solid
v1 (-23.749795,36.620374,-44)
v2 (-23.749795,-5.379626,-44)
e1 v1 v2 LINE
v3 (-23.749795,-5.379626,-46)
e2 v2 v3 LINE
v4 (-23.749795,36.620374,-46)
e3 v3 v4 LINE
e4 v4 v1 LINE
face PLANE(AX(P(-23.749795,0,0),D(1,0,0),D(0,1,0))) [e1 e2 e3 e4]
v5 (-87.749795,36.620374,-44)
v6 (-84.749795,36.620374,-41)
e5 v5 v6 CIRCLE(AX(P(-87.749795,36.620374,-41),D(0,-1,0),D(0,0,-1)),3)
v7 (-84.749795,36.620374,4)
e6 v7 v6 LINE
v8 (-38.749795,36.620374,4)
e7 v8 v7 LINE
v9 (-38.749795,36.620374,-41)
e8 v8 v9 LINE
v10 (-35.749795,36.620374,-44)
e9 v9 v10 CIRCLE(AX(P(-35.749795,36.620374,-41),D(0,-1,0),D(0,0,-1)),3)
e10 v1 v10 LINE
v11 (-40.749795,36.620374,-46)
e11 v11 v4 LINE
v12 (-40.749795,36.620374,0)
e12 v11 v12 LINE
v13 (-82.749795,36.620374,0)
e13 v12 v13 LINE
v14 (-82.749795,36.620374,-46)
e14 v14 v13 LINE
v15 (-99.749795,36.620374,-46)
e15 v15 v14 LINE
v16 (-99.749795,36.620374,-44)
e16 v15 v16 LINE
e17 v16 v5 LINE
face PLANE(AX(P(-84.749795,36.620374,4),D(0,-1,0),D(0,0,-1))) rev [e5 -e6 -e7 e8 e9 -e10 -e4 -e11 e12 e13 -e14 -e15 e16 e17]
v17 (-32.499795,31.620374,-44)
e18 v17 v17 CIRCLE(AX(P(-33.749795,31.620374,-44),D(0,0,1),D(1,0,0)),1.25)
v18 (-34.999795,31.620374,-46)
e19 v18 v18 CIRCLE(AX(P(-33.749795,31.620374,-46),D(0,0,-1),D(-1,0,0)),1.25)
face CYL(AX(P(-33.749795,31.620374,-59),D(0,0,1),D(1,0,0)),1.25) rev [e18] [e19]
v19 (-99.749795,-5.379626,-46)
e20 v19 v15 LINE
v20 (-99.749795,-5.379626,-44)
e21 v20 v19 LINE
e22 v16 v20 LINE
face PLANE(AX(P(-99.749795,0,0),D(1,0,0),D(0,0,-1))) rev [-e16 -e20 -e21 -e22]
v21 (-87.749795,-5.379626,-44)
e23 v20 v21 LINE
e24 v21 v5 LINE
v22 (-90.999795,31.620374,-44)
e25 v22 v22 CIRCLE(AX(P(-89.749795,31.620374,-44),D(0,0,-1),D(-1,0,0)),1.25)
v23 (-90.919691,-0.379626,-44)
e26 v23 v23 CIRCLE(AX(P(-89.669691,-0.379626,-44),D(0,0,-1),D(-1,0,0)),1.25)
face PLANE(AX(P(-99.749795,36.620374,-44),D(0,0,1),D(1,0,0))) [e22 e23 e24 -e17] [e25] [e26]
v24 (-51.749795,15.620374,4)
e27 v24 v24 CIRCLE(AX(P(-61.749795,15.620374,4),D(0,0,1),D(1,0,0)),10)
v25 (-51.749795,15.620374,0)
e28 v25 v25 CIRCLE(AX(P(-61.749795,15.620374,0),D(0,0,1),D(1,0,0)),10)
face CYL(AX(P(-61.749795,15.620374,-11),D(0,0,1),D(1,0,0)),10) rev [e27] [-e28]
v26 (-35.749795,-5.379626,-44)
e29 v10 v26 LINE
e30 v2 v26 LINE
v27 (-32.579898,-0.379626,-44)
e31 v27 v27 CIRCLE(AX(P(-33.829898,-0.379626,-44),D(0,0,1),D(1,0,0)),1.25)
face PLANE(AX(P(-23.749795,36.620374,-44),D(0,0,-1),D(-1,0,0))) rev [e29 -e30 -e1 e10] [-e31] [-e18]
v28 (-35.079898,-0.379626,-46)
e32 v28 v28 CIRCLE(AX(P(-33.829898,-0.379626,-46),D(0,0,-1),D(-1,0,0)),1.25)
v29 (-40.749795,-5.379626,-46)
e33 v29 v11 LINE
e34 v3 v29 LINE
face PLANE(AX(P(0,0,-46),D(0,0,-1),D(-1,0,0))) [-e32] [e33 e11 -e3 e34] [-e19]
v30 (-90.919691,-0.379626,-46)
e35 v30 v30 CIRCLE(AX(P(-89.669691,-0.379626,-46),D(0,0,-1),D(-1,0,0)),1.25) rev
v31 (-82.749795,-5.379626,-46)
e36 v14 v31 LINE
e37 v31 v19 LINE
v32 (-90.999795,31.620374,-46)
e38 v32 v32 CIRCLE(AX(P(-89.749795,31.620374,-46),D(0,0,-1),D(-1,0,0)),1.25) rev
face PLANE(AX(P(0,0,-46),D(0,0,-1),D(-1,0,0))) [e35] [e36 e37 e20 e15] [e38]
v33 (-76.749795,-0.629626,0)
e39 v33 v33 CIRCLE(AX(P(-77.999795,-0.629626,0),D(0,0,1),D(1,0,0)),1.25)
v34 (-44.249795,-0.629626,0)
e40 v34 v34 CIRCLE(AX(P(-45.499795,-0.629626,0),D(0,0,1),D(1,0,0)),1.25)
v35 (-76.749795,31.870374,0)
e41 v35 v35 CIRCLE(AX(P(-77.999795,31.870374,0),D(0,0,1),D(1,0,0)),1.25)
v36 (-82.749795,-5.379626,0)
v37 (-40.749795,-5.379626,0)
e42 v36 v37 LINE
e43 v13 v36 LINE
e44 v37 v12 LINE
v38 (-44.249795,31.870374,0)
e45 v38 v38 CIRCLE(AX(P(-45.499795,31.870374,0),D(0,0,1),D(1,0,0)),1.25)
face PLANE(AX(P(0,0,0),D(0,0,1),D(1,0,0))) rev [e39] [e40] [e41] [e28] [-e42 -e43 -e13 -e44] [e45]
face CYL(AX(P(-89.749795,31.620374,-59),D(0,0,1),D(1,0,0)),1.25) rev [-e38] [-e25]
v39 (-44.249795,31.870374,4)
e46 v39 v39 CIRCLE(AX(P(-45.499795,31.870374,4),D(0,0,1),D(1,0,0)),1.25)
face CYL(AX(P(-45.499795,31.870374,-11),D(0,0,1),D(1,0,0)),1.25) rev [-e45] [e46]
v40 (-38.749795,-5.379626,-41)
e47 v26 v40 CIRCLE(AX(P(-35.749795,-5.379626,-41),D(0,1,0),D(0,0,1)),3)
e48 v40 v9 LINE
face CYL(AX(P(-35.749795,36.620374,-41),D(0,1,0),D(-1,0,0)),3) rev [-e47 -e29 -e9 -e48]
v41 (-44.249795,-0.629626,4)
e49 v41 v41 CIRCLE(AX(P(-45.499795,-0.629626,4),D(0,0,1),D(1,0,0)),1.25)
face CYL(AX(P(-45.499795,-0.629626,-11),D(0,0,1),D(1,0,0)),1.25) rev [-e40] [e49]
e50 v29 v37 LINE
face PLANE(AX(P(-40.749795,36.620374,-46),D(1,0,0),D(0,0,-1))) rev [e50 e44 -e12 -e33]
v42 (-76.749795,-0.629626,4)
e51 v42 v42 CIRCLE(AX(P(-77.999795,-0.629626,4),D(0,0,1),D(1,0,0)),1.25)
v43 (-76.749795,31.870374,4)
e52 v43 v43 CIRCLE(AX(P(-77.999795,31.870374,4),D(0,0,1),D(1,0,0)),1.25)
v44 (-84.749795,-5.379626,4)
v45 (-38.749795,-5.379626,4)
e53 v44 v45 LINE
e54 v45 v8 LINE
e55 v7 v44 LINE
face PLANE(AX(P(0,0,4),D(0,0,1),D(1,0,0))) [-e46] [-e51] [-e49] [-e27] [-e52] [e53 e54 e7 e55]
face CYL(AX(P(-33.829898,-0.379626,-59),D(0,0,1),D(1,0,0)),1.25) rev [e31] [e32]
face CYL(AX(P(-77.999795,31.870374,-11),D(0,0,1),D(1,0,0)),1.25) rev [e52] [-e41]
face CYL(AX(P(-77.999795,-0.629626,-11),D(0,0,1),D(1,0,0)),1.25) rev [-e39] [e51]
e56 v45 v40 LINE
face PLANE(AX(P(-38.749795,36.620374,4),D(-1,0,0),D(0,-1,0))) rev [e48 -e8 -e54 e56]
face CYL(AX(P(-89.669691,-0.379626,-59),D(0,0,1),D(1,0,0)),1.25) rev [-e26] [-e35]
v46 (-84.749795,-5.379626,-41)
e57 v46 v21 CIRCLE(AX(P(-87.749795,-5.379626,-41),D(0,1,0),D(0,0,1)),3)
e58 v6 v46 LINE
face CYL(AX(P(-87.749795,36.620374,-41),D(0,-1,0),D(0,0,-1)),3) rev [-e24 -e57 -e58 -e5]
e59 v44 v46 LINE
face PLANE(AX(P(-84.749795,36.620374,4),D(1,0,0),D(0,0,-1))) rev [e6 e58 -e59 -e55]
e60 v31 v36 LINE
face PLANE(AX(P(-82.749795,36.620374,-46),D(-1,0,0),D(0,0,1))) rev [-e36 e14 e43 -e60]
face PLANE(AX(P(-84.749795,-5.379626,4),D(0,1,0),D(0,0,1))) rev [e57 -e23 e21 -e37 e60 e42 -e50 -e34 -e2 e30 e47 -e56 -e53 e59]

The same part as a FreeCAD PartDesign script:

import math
import FreeCAD as App
import Part
import Sketcher

V = App.Vector


def edges_at(feature, points):
    """Names of the edges that pass closest to the given points."""
    edges = feature.Shape.Edges
    near = lambda p: min(range(len(edges)), key=lambda i: edges[i].distToShape(Part.Vertex(*p))[0])
    return sorted({f"Edge{near(p) + 1}" for p in points})


def add_polygon(sketch, points):
    """Adds a closed chain of lines whose ends are joined by coincident constraints."""
    first, n = sketch.GeometryCount, len(points)
    for a, b in zip(points, points[1:] + points[:1]):
        sketch.addGeometry(Part.LineSegment(App.Vector(*a, 0), App.Vector(*b, 0)), False)
    for i in range(n):
        sketch.addConstraint(Sketcher.Constraint("Coincident", first + i, 2, first + (i + 1) % n, 1))

doc = App.newDocument("Part")
body = doc.addObject("PartDesign::Body", "Body")

# Sketch on XY plane
sketch1 = doc.addObject("Sketcher::SketchObject", "Sketch")
body.addObject(sketch1)
sketch1.AttachmentSupport = (doc.XY_Plane, [""])
sketch1.MapMode = "FlatFace"
add_polygon(sketch1, [(-85, 37), (-85, -5), (-39, -5), (-39, 37)])  # lines 0-3
sketch1.addConstraint([
    Sketcher.Constraint("Vertical", 0),
    Sketcher.Constraint("Horizontal", 1),
    Sketcher.Constraint("Vertical", 2),
    Sketcher.Constraint("Horizontal", 3),
    Sketcher.Constraint("DistanceX", 1, 1, 1, 2, 46.0),
    Sketcher.Constraint("DistanceY", 0, 2, 0, 1, 42.0),
    Sketcher.Constraint("DistanceX", 0, 2, -1, 1, 84.749795),
    Sketcher.Constraint("DistanceY", 0, 2, -1, 1, 5.379626),
])
pad1 = doc.addObject("PartDesign::Pad", "Pad")
body.addObject(pad1)
pad1.Profile = sketch1
pad1.Length = 4

# Sketch on XY plane
sketch2 = doc.addObject("Sketcher::SketchObject", "Sketch001")
body.addObject(sketch2)
sketch2.AttachmentSupport = (doc.XY_Plane, [""])
sketch2.MapMode = "FlatFace"
add_polygon(sketch2, [(-82.7, 36.6), (-82.7, -5.4), (-84.7, -5.4), (-84.7, 36.6)])  # lines 0-3
add_polygon(sketch2, [(-38.7, 36.6), (-38.7, -5.4), (-40.7, -5.4), (-40.7, 36.6)])  # lines 4-7
sketch2.addConstraint([
    Sketcher.Constraint("Vertical", 0),
    Sketcher.Constraint("Horizontal", 1),
    Sketcher.Constraint("Vertical", 2),
    Sketcher.Constraint("Horizontal", 3),
    Sketcher.Constraint("Vertical", 4),
    Sketcher.Constraint("Horizontal", 5),
    Sketcher.Constraint("Vertical", 6),
    Sketcher.Constraint("Horizontal", 7),
    Sketcher.Constraint("Horizontal", 1, 2, 4, 2),
    Sketcher.Constraint("Horizontal", 3, 2, 6, 2),
    Sketcher.Constraint("Equal", 3, 5),
    Sketcher.Constraint("DistanceX", 1, 2, 1, 1, 2.0),
    Sketcher.Constraint("DistanceY", 0, 2, 0, 1, 42.0),
    Sketcher.Constraint("DistanceX", 0, 2, 4, 2, 44.0),
    Sketcher.Constraint("DistanceX", 0, 2, -1, 1, 82.749795),
    Sketcher.Constraint("DistanceY", 0, 2, -1, 1, 5.379626),
])
pad2 = doc.addObject("PartDesign::Pad", "Pad001")
body.addObject(pad2)
pad2.Profile = sketch2
pad2.Length = 46
pad2.Reversed = True

# Sketch on YZ plane
sketch3 = doc.addObject("Sketcher::SketchObject", "Sketch002")
body.addObject(sketch3)
sketch3.AttachmentSupport = (doc.YZ_Plane, [""])
sketch3.MapMode = "FlatFace"
sketch3.AttachmentOffset = App.Placement(V(0, 0, -84.749795), App.Rotation())
add_polygon(sketch3, [(36.6, -46), (-5.4, -46), (-5.4, -44), (36.6, -44)])  # lines 0-3
sketch3.addConstraint([
    Sketcher.Constraint("Horizontal", 0),
    Sketcher.Constraint("Vertical", 1),
    Sketcher.Constraint("Horizontal", 2),
    Sketcher.Constraint("Vertical", 3),
    Sketcher.Constraint("DistanceX", 0, 2, 0, 1, 42.0),
    Sketcher.Constraint("DistanceY", 1, 1, 1, 2, 2.0),
    Sketcher.Constraint("DistanceY", 0, 2, -1, 1, 46.0),
    Sketcher.Constraint("DistanceX", 0, 2, -1, 1, 5.379626),
])
pad3 = doc.addObject("PartDesign::Pad", "Pad002")
body.addObject(pad3)
pad3.Profile = sketch3
pad3.Length = 15
pad3.Reversed = True

# Sketch on YZ plane
sketch4 = doc.addObject("Sketcher::SketchObject", "Sketch003")
body.addObject(sketch4)
sketch4.AttachmentSupport = (doc.YZ_Plane, [""])
sketch4.MapMode = "FlatFace"
sketch4.AttachmentOffset = App.Placement(V(0, 0, -38.749795), App.Rotation())
add_polygon(sketch4, [(36.6, -44), (-5.4, -44), (-5.4, -46), (36.6, -46)])  # lines 0-3
sketch4.addConstraint([
    Sketcher.Constraint("Horizontal", 0),
    Sketcher.Constraint("Vertical", 1),
    Sketcher.Constraint("Horizontal", 2),
    Sketcher.Constraint("Vertical", 3),
    Sketcher.Constraint("DistanceX", 0, 2, 0, 1, 42.0),
    Sketcher.Constraint("DistanceY", 1, 2, 1, 1, 2.0),
    Sketcher.Constraint("DistanceY", 0, 2, -1, 1, 44.0),
    Sketcher.Constraint("DistanceX", 0, 2, -1, 1, 5.379626),
])
pad4 = doc.addObject("PartDesign::Pad", "Pad003")
body.addObject(pad4)
pad4.Profile = sketch4
pad4.Length = 15

# Sketch on XY plane
sketch5 = doc.addObject("Sketcher::SketchObject", "Sketch004")
body.addObject(sketch5)
sketch5.AttachmentSupport = (doc.XY_Plane, [""])
sketch5.MapMode = "FlatFace"
sketch5.AttachmentOffset = App.Placement(V(0, 0, 4), App.Rotation())
sketch5.addGeometry([
    Part.Circle(V(-45.5, 31.9, 0), V(0, 0, 1), 1.2),  # 0
    Part.ArcOfCircle(Part.Circle(V(-78, -0.6, 0), V(0, 0, 1), 1.2), math.radians(180), math.radians(270)),  # 1
    Part.ArcOfCircle(Part.Circle(V(-78, -0.6, 0), V(0, 0, 1), 1.2), math.radians(-90), math.radians(0)),  # 2
    Part.ArcOfCircle(Part.Circle(V(-78, -0.6, 0), V(0, 0, 1), 1.2), math.radians(0), math.radians(180)),  # 3
    Part.Circle(V(-78, 31.9, 0), V(0, 0, 1), 1.2),  # 4
], False)
sketch5.addConstraint([
    Sketcher.Constraint("Tangent", 1, 2, 2, 1),
    Sketcher.Constraint("Tangent", 2, 2, 3, 1),
    Sketcher.Constraint("Tangent", 3, 2, 1, 1),
    Sketcher.Constraint("Equal", 0, 1),
    Sketcher.Constraint("Equal", 3, 4),
    Sketcher.Constraint("Horizontal", 0, 3, 4, 3),
    Sketcher.Constraint("Horizontal", 3, 3, 2, 2),
    Sketcher.Constraint("Horizontal", 2, 2, 3, 2),
    Sketcher.Constraint("Vertical", 3, 3, 4, 3),
    Sketcher.Constraint("Vertical", 4, 3, 1, 2),
    Sketcher.Constraint("Diameter", 0, 2.5),
    Sketcher.Constraint("DistanceX", 1, 3, 0, 3, 32.5),
    Sketcher.Constraint("DistanceY", 1, 3, 0, 3, 32.5),
    Sketcher.Constraint("DistanceX", 0, 3, -1, 1, 45.499795),
    Sketcher.Constraint("DistanceY", -1, 1, 0, 3, 31.870374),
])
pocket1 = doc.addObject("PartDesign::Pocket", "Pocket")
body.addObject(pocket1)
pocket1.Profile = sketch5
pocket1.Length = 15

# Sketch on XY plane
sketch6 = doc.addObject("Sketcher::SketchObject", "Sketch005")
body.addObject(sketch6)
sketch6.AttachmentSupport = (doc.XY_Plane, [""])
sketch6.MapMode = "FlatFace"
sketch6.AttachmentOffset = App.Placement(V(0, 0, 4), App.Rotation())
sketch6.addGeometry([
    Part.ArcOfCircle(Part.Circle(V(-45.5, -0.6, 0), V(0, 0, 1), 1.2), math.radians(0), math.radians(270)),
    Part.ArcOfCircle(Part.Circle(V(-45.5, -0.6, 0), V(0, 0, 1), 1.2), math.radians(-90), math.radians(0)),
], False)
sketch6.addConstraint([
    Sketcher.Constraint("Tangent", 0, 1, 1, 2),
    Sketcher.Constraint("Coincident", 1, 1, 0, 2),
    Sketcher.Constraint("Horizontal", 1, 3, 0, 1),
    Sketcher.Constraint("Vertical", 0, 3, 1, 1),
    Sketcher.Constraint("Radius", 0, 1.25),
    Sketcher.Constraint("DistanceX", 0, 3, -1, 1, 45.499795),
    Sketcher.Constraint("DistanceY", 0, 3, -1, 1, 0.629626),
])
pocket2 = doc.addObject("PartDesign::Pocket", "Pocket001")
body.addObject(pocket2)
pocket2.Profile = sketch6
pocket2.Length = 15

# Sketch on XY plane
sketch7 = doc.addObject("Sketcher::SketchObject", "Sketch006")
body.addObject(sketch7)
sketch7.AttachmentSupport = (doc.XY_Plane, [""])
sketch7.MapMode = "FlatFace"
sketch7.AttachmentOffset = App.Placement(V(0, 0, -44), App.Rotation())
sketch7.addGeometry([
    Part.Circle(V(-33.7, 31.6, 0), V(0, 0, 1), 1.2),
    Part.Circle(V(-33.8, -0.4, 0), V(0, 0, 1), 1.2),
], False)
sketch7.addConstraint([
    Sketcher.Constraint("Equal", 0, 1),
    Sketcher.Constraint("Diameter", 0, 2.5),
    Sketcher.Constraint("DistanceY", 1, 3, 0, 3, 32.0),
    Sketcher.Constraint("DistanceX", 1, 3, -1, 1, 33.829898),
    Sketcher.Constraint("DistanceX", 0, 3, -1, 1, 33.749795),
    Sketcher.Constraint("DistanceY", -1, 1, 0, 3, 31.620374),
])
pocket3 = doc.addObject("PartDesign::Pocket", "Pocket002")
body.addObject(pocket3)
pocket3.Profile = sketch7
pocket3.Length = 15
doc.recompute()

datumplane = doc.addObject("PartDesign::Plane", "DatumPlane")
body.addObject(datumplane)
datumplane.AttachmentSupport = (doc.YZ_Plane, [""])
datumplane.MapMode = "FlatFace"
datumplane.AttachmentOffset = App.Placement(V(0, 0, -61.749795), App.Rotation())
mirrored = doc.addObject("PartDesign::Mirrored", "Mirrored")
body.addObject(mirrored)
mirrored.Originals = [pocket3]
mirrored.MirrorPlane = (datumplane, [""])
body.Tip = mirrored
doc.recompute()

fillet = doc.addObject("PartDesign::Fillet", "Fillet")
body.addObject(fillet)
fillet.Base = (mirrored, edges_at(mirrored, [(-84.75, 15.62, -44)]))
fillet.Radius = 3
doc.recompute()

fillet2 = doc.addObject("PartDesign::Fillet", "Fillet001")
body.addObject(fillet2)
fillet2.Base = (fillet, edges_at(fillet, [(-38.75, 15.62, -44)]))
fillet2.Radius = 3

# Sketch on XY plane
sketch8 = doc.addObject("Sketcher::SketchObject", "Sketch007")
body.addObject(sketch8)
sketch8.AttachmentSupport = (doc.XY_Plane, [""])
sketch8.MapMode = "FlatFace"
sketch8.AttachmentOffset = App.Placement(V(0, 0, 4), App.Rotation())
sketch8.addGeometry(Part.Circle(V(-62, 16, 0), V(0, 0, 1), 10), False)
sketch8.addConstraint([
    Sketcher.Constraint("Diameter", 0, 20.0),
    Sketcher.Constraint("DistanceX", 0, 3, -1, 1, 61.749795),
    Sketcher.Constraint("DistanceY", -1, 1, 0, 3, 15.620374),
])
pocket4 = doc.addObject("PartDesign::Pocket", "Pocket003")
body.addObject(pocket4)
pocket4.Profile = sketch8
pocket4.Length = 15

doc.recompute()
